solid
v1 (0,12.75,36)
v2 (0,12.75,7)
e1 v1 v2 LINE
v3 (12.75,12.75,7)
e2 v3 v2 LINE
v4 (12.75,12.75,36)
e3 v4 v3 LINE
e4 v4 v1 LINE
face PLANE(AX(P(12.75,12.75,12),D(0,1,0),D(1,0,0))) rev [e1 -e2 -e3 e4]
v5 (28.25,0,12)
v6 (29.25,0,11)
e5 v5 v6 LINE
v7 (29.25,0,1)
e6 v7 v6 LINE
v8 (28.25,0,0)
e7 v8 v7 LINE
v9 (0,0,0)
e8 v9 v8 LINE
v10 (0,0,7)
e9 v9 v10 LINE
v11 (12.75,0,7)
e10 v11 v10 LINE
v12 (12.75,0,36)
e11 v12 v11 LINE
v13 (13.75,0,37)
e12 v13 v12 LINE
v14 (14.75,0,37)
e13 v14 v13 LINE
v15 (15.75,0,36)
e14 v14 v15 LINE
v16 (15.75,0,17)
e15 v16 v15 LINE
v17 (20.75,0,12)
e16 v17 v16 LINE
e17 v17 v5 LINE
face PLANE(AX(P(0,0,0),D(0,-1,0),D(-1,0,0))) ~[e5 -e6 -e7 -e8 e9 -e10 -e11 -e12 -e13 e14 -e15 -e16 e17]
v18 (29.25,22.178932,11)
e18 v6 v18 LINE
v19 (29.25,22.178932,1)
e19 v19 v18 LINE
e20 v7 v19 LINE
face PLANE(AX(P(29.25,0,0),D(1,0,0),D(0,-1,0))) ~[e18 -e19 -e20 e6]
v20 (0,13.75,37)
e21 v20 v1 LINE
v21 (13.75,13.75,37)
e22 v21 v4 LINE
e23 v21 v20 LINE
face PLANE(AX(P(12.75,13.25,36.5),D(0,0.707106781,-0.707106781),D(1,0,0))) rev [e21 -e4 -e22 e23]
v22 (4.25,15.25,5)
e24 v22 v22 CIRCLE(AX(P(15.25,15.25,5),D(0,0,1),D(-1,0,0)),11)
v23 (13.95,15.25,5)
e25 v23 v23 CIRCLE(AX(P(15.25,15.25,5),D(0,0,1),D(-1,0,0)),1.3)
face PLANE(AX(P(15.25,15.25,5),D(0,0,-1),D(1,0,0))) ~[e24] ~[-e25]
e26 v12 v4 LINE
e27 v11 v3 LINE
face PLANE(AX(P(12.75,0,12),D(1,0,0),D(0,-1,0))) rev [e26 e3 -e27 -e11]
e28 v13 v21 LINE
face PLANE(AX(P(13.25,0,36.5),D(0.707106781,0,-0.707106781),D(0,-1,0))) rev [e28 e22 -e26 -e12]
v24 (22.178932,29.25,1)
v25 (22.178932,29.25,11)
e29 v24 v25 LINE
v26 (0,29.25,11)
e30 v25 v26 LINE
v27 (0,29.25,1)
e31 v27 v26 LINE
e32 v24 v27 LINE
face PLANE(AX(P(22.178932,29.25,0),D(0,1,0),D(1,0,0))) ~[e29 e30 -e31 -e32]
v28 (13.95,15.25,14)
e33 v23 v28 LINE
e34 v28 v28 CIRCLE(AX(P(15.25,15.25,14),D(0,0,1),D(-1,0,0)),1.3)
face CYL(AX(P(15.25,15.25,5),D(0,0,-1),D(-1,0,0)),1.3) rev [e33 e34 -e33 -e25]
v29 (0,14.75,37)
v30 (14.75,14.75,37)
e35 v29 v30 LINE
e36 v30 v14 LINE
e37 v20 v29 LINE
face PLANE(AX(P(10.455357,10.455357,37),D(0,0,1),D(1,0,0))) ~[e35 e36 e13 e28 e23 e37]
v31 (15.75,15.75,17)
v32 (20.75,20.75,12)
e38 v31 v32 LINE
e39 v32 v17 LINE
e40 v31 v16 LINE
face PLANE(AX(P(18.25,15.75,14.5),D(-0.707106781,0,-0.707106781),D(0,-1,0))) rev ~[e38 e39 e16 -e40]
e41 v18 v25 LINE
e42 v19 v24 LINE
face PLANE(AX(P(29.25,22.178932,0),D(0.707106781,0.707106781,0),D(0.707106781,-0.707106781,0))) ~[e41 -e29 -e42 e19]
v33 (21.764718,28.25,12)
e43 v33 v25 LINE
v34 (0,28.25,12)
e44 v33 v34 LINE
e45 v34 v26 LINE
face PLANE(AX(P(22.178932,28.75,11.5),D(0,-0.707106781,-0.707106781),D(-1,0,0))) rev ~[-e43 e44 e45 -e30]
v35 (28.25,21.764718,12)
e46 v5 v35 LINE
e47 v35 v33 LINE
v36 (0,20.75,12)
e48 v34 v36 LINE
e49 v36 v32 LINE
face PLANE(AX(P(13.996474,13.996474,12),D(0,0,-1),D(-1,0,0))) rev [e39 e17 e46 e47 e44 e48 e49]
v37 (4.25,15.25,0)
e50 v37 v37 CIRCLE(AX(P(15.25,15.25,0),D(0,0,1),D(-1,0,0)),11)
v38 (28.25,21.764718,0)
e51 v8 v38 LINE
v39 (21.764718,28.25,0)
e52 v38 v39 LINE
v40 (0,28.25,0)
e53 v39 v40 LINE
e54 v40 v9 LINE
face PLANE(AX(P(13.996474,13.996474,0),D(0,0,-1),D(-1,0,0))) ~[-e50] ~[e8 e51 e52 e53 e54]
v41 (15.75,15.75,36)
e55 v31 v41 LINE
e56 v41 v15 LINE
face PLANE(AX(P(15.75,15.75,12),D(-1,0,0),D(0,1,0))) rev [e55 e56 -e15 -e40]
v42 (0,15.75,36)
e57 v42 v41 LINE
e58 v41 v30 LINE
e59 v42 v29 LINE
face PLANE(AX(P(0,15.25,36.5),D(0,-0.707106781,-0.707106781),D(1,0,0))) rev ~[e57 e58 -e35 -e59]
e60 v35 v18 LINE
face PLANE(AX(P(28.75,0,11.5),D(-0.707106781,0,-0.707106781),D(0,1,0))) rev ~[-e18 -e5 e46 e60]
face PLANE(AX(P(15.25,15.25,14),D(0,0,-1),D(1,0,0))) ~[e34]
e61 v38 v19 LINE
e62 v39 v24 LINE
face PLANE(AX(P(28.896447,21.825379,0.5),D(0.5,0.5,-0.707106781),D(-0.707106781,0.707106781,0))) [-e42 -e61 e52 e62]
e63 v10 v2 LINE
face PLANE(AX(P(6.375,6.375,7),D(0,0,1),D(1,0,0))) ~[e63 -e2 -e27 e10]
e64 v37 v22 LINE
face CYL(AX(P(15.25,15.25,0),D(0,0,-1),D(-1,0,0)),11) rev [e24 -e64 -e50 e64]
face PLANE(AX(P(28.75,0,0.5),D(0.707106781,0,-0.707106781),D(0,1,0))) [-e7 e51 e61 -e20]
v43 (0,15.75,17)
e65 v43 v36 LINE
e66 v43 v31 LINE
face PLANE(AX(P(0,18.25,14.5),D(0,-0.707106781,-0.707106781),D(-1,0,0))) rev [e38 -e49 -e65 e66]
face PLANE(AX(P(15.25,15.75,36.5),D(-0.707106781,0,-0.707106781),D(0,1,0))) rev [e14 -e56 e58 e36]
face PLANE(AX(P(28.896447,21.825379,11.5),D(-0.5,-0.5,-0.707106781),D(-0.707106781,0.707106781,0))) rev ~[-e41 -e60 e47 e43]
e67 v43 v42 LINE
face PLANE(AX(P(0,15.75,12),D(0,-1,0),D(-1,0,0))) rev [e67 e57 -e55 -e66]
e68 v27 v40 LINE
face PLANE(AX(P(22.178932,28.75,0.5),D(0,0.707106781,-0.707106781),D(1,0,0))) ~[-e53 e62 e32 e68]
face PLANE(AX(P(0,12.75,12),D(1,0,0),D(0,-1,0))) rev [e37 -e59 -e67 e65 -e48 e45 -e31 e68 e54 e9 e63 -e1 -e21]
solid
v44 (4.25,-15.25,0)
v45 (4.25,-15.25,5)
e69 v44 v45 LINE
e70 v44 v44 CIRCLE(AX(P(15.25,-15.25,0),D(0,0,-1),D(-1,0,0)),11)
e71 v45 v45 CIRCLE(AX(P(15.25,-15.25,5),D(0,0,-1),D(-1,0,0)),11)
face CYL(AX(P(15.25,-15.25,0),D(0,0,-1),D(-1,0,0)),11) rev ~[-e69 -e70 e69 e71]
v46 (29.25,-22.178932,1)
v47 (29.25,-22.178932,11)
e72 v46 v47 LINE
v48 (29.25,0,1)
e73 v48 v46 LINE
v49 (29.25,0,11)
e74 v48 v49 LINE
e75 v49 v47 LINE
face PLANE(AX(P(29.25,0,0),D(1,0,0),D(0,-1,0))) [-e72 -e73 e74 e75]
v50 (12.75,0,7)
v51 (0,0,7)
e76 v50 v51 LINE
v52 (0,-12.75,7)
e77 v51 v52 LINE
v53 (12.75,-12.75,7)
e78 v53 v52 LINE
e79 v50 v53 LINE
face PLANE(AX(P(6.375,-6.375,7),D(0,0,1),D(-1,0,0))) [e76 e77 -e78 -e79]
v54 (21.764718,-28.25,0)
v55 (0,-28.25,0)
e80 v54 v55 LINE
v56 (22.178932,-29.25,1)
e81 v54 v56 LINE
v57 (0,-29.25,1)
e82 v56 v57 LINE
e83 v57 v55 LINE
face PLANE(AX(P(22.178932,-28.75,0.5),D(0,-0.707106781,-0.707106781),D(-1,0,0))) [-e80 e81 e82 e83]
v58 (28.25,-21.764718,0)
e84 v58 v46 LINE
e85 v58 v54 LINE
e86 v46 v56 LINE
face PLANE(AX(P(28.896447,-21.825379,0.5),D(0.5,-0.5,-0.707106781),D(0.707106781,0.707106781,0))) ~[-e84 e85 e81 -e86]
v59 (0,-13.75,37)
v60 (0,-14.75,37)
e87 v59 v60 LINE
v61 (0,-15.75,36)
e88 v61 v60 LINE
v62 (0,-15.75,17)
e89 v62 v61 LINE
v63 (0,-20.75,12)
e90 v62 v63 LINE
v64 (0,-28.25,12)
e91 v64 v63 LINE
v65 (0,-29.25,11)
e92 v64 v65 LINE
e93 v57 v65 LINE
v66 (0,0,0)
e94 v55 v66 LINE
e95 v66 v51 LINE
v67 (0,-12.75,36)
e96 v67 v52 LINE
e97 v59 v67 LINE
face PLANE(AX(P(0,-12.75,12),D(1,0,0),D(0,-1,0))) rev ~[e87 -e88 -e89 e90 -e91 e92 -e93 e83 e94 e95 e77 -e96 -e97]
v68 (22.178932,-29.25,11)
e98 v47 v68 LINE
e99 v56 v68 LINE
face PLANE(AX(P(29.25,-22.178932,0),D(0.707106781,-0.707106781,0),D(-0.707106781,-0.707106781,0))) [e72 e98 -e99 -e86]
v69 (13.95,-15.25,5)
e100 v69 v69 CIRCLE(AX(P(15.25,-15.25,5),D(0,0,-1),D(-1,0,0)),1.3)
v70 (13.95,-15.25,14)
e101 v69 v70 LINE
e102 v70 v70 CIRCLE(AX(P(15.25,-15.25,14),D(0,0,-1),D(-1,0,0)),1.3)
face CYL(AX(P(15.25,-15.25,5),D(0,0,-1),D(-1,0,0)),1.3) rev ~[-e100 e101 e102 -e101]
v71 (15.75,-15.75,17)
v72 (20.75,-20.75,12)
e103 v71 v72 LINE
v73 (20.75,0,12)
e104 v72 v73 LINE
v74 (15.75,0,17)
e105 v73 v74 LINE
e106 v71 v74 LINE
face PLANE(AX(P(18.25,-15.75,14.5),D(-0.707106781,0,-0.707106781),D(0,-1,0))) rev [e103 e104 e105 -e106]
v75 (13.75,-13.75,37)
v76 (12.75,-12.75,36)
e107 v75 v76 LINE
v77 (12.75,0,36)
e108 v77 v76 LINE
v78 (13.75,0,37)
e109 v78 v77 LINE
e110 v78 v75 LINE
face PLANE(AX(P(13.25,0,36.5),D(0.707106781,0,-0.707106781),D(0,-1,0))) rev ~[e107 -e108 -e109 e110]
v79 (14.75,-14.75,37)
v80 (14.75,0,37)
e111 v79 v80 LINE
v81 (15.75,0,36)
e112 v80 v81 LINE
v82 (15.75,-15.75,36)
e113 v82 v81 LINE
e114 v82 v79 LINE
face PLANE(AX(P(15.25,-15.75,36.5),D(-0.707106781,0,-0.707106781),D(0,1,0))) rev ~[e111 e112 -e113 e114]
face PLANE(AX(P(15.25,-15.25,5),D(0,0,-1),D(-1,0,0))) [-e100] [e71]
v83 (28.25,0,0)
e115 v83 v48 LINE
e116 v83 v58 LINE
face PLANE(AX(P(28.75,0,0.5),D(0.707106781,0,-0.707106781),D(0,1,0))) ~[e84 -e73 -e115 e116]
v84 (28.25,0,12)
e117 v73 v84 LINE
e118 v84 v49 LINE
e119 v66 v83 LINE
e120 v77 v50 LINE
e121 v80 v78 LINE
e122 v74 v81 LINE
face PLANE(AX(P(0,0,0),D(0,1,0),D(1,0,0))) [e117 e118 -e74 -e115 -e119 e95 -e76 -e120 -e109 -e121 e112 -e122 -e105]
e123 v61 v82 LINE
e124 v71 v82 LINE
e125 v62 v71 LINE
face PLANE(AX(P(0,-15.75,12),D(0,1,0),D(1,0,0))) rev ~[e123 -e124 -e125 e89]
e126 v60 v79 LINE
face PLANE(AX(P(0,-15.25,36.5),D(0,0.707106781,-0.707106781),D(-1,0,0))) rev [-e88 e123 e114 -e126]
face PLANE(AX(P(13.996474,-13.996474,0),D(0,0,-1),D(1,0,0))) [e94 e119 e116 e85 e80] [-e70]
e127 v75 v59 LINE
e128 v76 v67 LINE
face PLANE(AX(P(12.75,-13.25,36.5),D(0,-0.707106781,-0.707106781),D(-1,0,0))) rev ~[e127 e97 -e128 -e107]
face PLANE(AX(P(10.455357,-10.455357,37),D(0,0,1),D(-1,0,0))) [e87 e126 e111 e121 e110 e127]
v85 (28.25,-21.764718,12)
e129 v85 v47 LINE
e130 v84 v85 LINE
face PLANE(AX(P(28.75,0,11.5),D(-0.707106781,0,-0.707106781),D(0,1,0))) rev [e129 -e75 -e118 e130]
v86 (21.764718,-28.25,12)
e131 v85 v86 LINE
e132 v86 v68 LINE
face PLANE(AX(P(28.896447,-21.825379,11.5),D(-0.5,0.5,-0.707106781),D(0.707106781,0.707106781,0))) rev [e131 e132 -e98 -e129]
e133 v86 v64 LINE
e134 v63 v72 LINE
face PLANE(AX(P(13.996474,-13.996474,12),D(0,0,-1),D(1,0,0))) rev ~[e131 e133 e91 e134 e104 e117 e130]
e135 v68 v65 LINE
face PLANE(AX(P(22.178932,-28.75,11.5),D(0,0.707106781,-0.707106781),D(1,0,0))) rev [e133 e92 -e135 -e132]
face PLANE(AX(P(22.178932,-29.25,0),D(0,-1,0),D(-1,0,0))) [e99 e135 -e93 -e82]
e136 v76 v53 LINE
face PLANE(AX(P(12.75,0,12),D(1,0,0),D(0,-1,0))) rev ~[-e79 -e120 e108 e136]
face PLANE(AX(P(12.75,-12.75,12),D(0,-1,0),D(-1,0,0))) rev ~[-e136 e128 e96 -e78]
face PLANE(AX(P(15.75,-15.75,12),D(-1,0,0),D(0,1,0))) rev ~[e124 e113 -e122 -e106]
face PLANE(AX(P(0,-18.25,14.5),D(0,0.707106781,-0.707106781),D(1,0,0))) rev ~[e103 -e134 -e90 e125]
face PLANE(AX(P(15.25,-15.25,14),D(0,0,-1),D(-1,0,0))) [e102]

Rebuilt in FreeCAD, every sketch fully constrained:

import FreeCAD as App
import Part
import Sketcher

V = App.Vector


def edges_at(feature, points):
    """Names of the edges that pass closest to the given points."""
    edges = feature.Shape.Edges
    near = lambda p: min(range(len(edges)), key=lambda i: edges[i].distToShape(Part.Vertex(*p))[0])
    return sorted({f"Edge{near(p) + 1}" for p in points})


def add_polygon(sketch, points):
    """Adds a closed chain of lines whose ends are joined by coincident constraints."""
    first, n = sketch.GeometryCount, len(points)
    for a, b in zip(points, points[1:] + points[:1]):
        sketch.addGeometry(Part.LineSegment(App.Vector(*a, 0), App.Vector(*b, 0)), False)
    for i in range(n):
        sketch.addConstraint(Sketcher.Constraint("Coincident", first + i, 2, first + (i + 1) % n, 1))

doc = App.newDocument("Part")
params = doc.addObject("Spreadsheet::Sheet", "Params")
for row, (alias, value) in enumerate([
    ("sketch1_length", "10 mm"),
    ("sketch1_width", "29.25 mm"),
    ("pad1_length", "12 mm"),
    ("sketch2_width", "12.75 mm"),
    ("pocket1_length", "5 mm"),
    ("sketch3_width", "3 mm"),
    ("sketch3_width2", "15.75 mm"),
    ("pad2_length", "25 mm"),
    ("sketch4_diameter", "22 mm"),
    ("pocket2_length", "5 mm"),
    ("chamfer_size", "5 mm"),
    ("sketch5_diameter", "2.6 mm"),
    ("pocket3_length", "9 mm"),
    ("chamfer2_size", "1 mm"),
    ("chamfer3_size", "1 mm"),
], start=1):
    params.set(f"A{row}", alias)
    params.set(f"B{row}", "=" + value)
    params.setAlias(f"B{row}", alias)

body = doc.addObject("PartDesign::Body", "Body")

# Sketch on XY plane
sketch1 = body.newObject("Sketcher::SketchObject", "Sketch")
sketch1.AttachmentSupport = (doc.getObject("XY_Plane"), [""])
sketch1.MapMode = "FlatFace"
add_polygon(sketch1, [(-29, 0), (0, 0), (0, 29), (-22, 29), (-29, 22)])  # lines 0-4
sketch1.addConstraint(Sketcher.Constraint("Horizontal", 0))
sketch1.addConstraint(Sketcher.Constraint("Vertical", 1))
sketch1.addConstraint(Sketcher.Constraint("Horizontal", 2))
sketch1.addConstraint(Sketcher.Constraint("Vertical", 4))
sketch1.addConstraint(Sketcher.Constraint("Coincident", 0, 2, -1, 1))
sketch1.addConstraint(Sketcher.Constraint("Equal", 0, 1))
sketch1.addConstraint(Sketcher.Constraint("Equal", 2, 4))
sketch1.addConstraint(Sketcher.Constraint("Distance", 3, 10.0))
sketch1.addConstraint(Sketcher.Constraint("DistanceX", 0, 1, 0, 2, 29.25))
sketch1.setExpression("Constraints[12]", "Params.sketch1_length")
sketch1.setExpression("Constraints[13]", "Params.sketch1_width")
pad1 = body.newObject("PartDesign::Pad", "Pad")
pad1.Profile = sketch1
pad1.setExpression("Length", "Params.pad1_length")

# Sketch on XY plane
sketch2 = body.newObject("Sketcher::SketchObject", "Sketch001")
sketch2.AttachmentSupport = (doc.getObject("XY_Plane"), [""])
sketch2.MapMode = "FlatFace"
sketch2.AttachmentOffset = App.Placement(V(0, 0, 12), App.Rotation())
add_polygon(sketch2, [(-13, 13), (-13, 0), (0, 0), (0, 13)])  # lines 0-3
sketch2.addConstraint(Sketcher.Constraint("Vertical", 0))
sketch2.addConstraint(Sketcher.Constraint("Horizontal", 1))
sketch2.addConstraint(Sketcher.Constraint("Vertical", 2))
sketch2.addConstraint(Sketcher.Constraint("Horizontal", 3))
sketch2.addConstraint(Sketcher.Constraint("Coincident", 1, 2, -1, 1))
sketch2.addConstraint(Sketcher.Constraint("Equal", 3, 0))
sketch2.addConstraint(Sketcher.Constraint("DistanceX", 1, 1, 1, 2, 12.75))
sketch2.setExpression("Constraints[10]", "Params.sketch2_width")
pocket1 = body.newObject("PartDesign::Pocket", "Pocket")
pocket1.Profile = sketch2
pocket1.setExpression("Length", "Params.pocket1_length")

# Sketch on XY plane
sketch3 = body.newObject("Sketcher::SketchObject", "Sketch002")
sketch3.AttachmentSupport = (doc.getObject("XY_Plane"), [""])
sketch3.MapMode = "FlatFace"
sketch3.AttachmentOffset = App.Placement(V(0, 0, 12), App.Rotation())
add_polygon(sketch3, [(0, 12.8), (0, 15.8), (-15.8, 15.8), (-15.8, 0), (-12.8, 0), (-12.8, 12.8)])  # lines 0-5
sketch3.addConstraint(Sketcher.Constraint("Vertical", 0))
sketch3.addConstraint(Sketcher.Constraint("Horizontal", 1))
sketch3.addConstraint(Sketcher.Constraint("Vertical", 2))
sketch3.addConstraint(Sketcher.Constraint("Horizontal", 3))
sketch3.addConstraint(Sketcher.Constraint("Vertical", 4))
sketch3.addConstraint(Sketcher.Constraint("Horizontal", 5))
sketch3.addConstraint(Sketcher.Constraint("PointOnObject", 0, 2, -2))
sketch3.addConstraint(Sketcher.Constraint("PointOnObject", 2, 2, -1))
sketch3.addConstraint(Sketcher.Constraint("Equal", 3, 0))
sketch3.addConstraint(Sketcher.Constraint("Equal", 1, 2))
sketch3.addConstraint(Sketcher.Constraint("DistanceX", 3, 1, 3, 2, 3.0))
sketch3.addConstraint(Sketcher.Constraint("DistanceX", 1, 2, 1, 1, 15.75))
sketch3.setExpression("Constraints[16]", "Params.sketch3_width")
sketch3.setExpression("Constraints[17]", "Params.sketch3_width2")
pad2 = body.newObject("PartDesign::Pad", "Pad001")
pad2.Profile = sketch3
pad2.setExpression("Length", "Params.pad2_length")

# Sketch on XY plane
sketch4 = body.newObject("Sketcher::SketchObject", "Sketch003")
sketch4.AttachmentSupport = (doc.getObject("XY_Plane"), [""])
sketch4.MapMode = "FlatFace"
sketch4.addGeometry(Part.Circle(V(-15, 15, 0), V(0, 0, 1), 11), False)
sketch4.addConstraint(Sketcher.Constraint("Diameter", 0, 22.0))
sketch4.addConstraint(Sketcher.Constraint("DistanceX", 0, 3, -1, 1, 15.25))
sketch4.addConstraint(Sketcher.Constraint("DistanceY", -1, 1, 0, 3, 15.25))
sketch4.setExpression("Constraints[0]", "Params.sketch4_diameter")
pocket2 = body.newObject("PartDesign::Pocket", "Pocket001")
pocket2.Profile = sketch4
pocket2.setExpression("Length", "Params.pocket2_length")
pocket2.Reversed = True
doc.recompute()

chamfer = body.newObject("PartDesign::Chamfer", "Chamfer")
chamfer.Base = (pocket2, edges_at(pocket2, [(-7.875, 15.75, 12), (-15.75, 7.875, 12)]))
chamfer.setExpression("Size", "Params.chamfer_size")

# Sketch on XY plane
sketch5 = body.newObject("Sketcher::SketchObject", "Sketch004")
sketch5.AttachmentSupport = (doc.getObject("XY_Plane"), [""])
sketch5.MapMode = "FlatFace"
sketch5.AttachmentOffset = App.Placement(V(0, 0, 5), App.Rotation())
sketch5.addGeometry(Part.Circle(V(-15.2, 15.2, 0), V(0, 0, 1), 1.3), False)
sketch5.addConstraint(Sketcher.Constraint("Diameter", 0, 2.6))
sketch5.addConstraint(Sketcher.Constraint("DistanceX", 0, 3, -1, 1, 15.25))
sketch5.addConstraint(Sketcher.Constraint("DistanceY", -1, 1, 0, 3, 15.25))
sketch5.setExpression("Constraints[0]", "Params.sketch5_diameter")
pocket3 = body.newObject("PartDesign::Pocket", "Pocket002")
pocket3.Profile = sketch5
pocket3.setExpression("Length", "Params.pocket3_length")
pocket3.Reversed = True
doc.recompute()

chamfer2 = body.newObject("PartDesign::Chamfer", "Chamfer001")
chamfer2.Base = (pocket3, edges_at(pocket3, [
    (-7.875, 15.75, 37),
    (-15.75, 7.875, 37),
    (-6.375, 12.75, 37),
    (-12.75, 6.375, 37),
]))
chamfer2.setExpression("Size", "Params.chamfer2_size")
doc.recompute()

chamfer3 = body.newObject("PartDesign::Chamfer", "Chamfer002")
chamfer3.Base = (chamfer2, edges_at(chamfer2, [
    (-11.089, 29.25, 12),
    (-25.714, 25.714, 12),
    (-29.25, 11.089, 12),
    (-29.25, 11.089, 0),
    (-25.714, 25.714, 0),
    (-11.089, 29.25, 0),
]))
chamfer3.setExpression("Size", "Params.chamfer3_size")
body2 = doc.addObject("PartDesign::Body", "Body001")
doc.recompute()

mirroring = doc.addObject("Part::Mirroring", "Mirroring")
mirroring.Source = body
mirroring.Base = V(0, 0, 0)
mirroring.Normal = V(1, 0, 0)
body2.BaseFeature = mirroring
doc.recompute()
body3 = doc.addObject("PartDesign::Body", "Body002")
doc.recompute()

mirroring2 = doc.addObject("Part::Mirroring", "Mirroring001")
mirroring2.Source = body
mirroring2.Base = V(0, 0, 0)
mirroring2.Normal = V(0, 1, 0)
body3.BaseFeature = mirroring2
doc.recompute()
body4 = doc.addObject("PartDesign::Body", "Body003")
doc.recompute()

mirroring3 = doc.addObject("Part::Mirroring", "Mirroring002")
mirroring3.Source = body3
mirroring3.Base = V(0, 0, 0)
mirroring3.Normal = V(1, 0, 0)
body4.BaseFeature = mirroring3
doc.recompute()
body.Visibility = False
body3.Visibility = False
mirroring.Visibility = False
mirroring2.Visibility = False
mirroring3.Visibility = False

doc.recompute()
